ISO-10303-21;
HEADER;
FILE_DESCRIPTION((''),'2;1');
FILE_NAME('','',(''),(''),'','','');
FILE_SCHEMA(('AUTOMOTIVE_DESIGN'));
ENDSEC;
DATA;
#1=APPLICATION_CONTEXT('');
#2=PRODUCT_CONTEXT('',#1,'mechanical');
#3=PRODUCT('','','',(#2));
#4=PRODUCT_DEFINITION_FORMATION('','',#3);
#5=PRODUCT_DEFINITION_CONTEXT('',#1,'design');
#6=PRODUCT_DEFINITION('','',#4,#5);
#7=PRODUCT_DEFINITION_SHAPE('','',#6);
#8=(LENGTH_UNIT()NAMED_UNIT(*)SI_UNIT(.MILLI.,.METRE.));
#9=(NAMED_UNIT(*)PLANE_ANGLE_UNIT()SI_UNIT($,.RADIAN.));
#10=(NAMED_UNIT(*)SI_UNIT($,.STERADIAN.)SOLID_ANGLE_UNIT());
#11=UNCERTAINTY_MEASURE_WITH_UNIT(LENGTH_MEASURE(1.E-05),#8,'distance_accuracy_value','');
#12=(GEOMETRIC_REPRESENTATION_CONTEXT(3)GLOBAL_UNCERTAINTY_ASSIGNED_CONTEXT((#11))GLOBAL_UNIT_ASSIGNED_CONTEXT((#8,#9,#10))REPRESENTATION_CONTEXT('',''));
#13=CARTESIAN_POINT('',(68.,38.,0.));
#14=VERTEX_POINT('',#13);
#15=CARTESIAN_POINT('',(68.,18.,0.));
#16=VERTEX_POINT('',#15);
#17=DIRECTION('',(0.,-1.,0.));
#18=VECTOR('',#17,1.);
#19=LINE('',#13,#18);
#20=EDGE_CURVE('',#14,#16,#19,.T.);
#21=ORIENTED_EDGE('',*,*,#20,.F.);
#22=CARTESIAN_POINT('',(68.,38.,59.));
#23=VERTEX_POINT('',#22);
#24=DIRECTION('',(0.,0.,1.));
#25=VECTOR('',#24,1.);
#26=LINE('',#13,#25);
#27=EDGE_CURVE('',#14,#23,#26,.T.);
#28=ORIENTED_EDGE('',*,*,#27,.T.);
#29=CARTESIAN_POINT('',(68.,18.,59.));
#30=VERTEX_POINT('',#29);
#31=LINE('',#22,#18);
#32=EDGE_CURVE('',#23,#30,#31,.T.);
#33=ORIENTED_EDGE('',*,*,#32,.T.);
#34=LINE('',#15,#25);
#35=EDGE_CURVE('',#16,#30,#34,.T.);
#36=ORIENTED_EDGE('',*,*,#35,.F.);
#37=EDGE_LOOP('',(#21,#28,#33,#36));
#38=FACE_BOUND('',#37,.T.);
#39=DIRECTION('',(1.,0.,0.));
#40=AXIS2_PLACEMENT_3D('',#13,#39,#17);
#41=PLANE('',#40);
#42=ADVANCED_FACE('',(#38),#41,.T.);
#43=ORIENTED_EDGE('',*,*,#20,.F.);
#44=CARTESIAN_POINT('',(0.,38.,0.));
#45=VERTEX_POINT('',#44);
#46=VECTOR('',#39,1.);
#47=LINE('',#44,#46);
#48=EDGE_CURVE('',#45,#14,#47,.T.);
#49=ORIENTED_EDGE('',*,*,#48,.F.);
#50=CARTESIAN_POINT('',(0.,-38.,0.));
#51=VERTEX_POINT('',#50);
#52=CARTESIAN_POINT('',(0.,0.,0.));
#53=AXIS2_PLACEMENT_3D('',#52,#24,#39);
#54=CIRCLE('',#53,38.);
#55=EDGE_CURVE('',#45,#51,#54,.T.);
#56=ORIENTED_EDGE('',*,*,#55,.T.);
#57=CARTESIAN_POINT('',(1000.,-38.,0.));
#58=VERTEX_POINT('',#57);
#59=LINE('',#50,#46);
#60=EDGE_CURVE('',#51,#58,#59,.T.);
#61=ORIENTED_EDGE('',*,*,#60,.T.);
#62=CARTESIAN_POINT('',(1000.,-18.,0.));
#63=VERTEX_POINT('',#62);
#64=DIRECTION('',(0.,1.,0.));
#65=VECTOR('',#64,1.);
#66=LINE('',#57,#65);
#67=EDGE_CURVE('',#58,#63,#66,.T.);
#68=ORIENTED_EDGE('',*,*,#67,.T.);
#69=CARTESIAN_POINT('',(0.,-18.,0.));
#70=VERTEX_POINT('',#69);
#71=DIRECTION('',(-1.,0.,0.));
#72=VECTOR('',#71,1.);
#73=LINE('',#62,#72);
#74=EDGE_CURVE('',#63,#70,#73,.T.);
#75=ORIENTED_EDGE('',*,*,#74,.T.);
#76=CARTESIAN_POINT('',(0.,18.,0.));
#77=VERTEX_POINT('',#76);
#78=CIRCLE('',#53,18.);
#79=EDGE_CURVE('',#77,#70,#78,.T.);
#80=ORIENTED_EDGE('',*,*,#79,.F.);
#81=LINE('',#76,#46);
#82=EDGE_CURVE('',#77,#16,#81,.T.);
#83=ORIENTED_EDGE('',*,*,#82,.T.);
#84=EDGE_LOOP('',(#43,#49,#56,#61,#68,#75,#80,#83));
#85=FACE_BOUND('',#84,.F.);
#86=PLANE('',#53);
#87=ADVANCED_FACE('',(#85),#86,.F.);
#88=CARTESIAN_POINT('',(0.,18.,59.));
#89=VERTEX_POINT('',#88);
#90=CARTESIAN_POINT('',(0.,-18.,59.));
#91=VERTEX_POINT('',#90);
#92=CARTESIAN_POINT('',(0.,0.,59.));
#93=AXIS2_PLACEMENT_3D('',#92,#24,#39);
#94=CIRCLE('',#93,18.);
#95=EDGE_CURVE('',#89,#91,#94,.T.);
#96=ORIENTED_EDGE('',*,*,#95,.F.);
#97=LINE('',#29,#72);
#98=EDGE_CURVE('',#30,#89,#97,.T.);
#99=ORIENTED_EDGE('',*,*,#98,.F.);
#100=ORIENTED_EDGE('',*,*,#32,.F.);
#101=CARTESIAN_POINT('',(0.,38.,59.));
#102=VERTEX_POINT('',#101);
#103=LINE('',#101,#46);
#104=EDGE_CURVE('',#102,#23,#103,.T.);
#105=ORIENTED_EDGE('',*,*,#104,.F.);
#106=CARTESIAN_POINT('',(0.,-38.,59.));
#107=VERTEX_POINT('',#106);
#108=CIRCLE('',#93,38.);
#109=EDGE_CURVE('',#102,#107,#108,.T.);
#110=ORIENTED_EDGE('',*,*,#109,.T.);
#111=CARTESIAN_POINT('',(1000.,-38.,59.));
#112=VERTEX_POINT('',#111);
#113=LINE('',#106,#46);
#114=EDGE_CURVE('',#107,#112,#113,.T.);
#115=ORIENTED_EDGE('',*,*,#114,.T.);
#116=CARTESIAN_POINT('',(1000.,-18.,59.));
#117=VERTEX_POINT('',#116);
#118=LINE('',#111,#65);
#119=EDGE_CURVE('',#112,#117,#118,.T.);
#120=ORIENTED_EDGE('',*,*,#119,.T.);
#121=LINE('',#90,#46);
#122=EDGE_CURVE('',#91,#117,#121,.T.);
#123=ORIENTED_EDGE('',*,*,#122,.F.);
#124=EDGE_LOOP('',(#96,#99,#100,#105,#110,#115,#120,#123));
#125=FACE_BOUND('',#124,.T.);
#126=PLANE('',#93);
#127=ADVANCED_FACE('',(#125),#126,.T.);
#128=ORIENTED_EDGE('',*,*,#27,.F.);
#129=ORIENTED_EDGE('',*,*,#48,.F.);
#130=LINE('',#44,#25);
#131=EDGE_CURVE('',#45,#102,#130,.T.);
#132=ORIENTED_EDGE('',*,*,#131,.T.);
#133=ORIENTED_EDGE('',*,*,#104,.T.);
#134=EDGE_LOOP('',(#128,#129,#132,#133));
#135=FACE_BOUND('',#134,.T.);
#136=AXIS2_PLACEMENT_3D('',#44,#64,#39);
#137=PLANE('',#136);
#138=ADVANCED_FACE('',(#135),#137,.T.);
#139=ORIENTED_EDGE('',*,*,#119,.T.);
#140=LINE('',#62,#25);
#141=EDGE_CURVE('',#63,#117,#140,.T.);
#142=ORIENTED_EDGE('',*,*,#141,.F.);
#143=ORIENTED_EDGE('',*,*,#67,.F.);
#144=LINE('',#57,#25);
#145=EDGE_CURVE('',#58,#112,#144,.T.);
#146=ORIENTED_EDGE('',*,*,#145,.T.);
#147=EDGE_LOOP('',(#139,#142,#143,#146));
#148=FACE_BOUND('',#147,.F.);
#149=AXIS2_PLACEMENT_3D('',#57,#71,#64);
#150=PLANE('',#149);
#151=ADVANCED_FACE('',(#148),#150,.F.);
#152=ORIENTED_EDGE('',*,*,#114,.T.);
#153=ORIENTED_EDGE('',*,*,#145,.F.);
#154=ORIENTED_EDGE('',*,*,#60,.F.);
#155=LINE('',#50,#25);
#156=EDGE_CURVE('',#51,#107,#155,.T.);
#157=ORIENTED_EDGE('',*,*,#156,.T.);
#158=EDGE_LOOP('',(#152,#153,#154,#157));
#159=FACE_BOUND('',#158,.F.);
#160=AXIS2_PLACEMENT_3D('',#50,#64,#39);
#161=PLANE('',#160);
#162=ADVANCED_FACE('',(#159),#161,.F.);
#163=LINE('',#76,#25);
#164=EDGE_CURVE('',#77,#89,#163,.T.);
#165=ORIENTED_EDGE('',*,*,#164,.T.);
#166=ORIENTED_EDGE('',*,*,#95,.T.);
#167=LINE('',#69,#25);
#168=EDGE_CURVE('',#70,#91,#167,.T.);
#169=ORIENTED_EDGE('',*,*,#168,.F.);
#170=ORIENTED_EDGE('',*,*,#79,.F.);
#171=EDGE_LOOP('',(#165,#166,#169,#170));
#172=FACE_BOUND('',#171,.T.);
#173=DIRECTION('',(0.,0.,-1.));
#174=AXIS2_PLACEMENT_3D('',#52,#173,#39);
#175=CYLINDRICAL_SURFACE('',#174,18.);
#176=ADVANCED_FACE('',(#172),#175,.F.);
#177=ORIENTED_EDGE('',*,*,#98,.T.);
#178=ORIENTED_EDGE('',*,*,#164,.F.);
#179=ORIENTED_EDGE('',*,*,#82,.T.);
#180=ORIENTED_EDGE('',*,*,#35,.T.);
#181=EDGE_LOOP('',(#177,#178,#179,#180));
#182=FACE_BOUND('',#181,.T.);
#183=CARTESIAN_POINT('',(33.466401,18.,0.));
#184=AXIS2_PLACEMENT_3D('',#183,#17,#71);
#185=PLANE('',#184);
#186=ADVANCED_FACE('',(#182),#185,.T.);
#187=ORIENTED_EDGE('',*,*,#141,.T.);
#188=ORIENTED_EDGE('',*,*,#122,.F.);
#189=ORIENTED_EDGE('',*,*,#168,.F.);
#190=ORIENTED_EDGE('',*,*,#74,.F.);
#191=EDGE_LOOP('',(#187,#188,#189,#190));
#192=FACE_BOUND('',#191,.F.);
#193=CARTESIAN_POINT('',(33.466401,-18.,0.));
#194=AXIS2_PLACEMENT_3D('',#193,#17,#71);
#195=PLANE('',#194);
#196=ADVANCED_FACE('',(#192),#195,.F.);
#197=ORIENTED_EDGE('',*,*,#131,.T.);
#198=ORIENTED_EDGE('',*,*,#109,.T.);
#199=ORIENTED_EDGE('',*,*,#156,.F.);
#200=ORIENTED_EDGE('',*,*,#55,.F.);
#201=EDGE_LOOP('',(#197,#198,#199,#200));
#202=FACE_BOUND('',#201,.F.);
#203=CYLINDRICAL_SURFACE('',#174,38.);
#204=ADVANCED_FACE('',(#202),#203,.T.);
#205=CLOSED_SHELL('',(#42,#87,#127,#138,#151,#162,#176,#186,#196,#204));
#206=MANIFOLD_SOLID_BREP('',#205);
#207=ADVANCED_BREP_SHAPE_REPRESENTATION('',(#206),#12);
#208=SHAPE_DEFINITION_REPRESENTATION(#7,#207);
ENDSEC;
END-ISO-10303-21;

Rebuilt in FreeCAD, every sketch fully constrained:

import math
import FreeCAD as App
import Part
import Sketcher

V = App.Vector
Q = App.Units.Quantity

doc = App.newDocument("Part")
body = doc.addObject("PartDesign::Body", "Body")

sketch1 = body.newObject("Sketcher::SketchObject", "Sketch")
sketch1.AttachmentSupport = (doc.getObject("XY_Plane"), [""])
sketch1.MapMode = "FlatFace"
sketch1.addGeometry([
    Part.ArcOfCircle(Part.Circle(V(0, 0, 0), V(0, 0, 1), 18), math.radians(90), math.radians(270)),
    Part.LineSegment(V(0, 18, 0), V(68, 18, 0)),
    Part.LineSegment(V(68, 18, 0), V(68, 38, 0)),
    Part.LineSegment(V(68, 38, 0), V(0, 38, 0)),
    Part.ArcOfCircle(Part.Circle(V(0, 0, 0), V(0, 0, 1), 38), math.radians(90), math.radians(270)),
    Part.LineSegment(V(0, -38, 0), V(1000, -38, 0)),
    Part.LineSegment(V(1000, -38, 0), V(1000, -18, 0)),
    Part.LineSegment(V(1000, -18, 0), V(0, -18, 0)),
], False)
sketch1.addConstraint([
    Sketcher.Constraint("Tangent", 0, 1, 1, 1),
    Sketcher.Constraint("Coincident", 1, 2, 2, 1),
    Sketcher.Constraint("Coincident", 2, 2, 3, 1),
    Sketcher.Constraint("Tangent", 3, 2, 4, 1),
    Sketcher.Constraint("Tangent", 4, 2, 5, 1),
    Sketcher.Constraint("Coincident", 5, 2, 6, 1),
    Sketcher.Constraint("Coincident", 6, 2, 7, 1),
    Sketcher.Constraint("Tangent", 7, 2, 0, 2),
    Sketcher.Constraint("Horizontal", 1),
    Sketcher.Constraint("Vertical", 2),
    Sketcher.Constraint("Horizontal", 3),
    Sketcher.Constraint("Horizontal", 5),
    Sketcher.Constraint("Vertical", 6),
    Sketcher.Constraint("Horizontal", 7),
    Sketcher.Constraint("Coincident", 0, 3, -1, 1),
    Sketcher.Constraint("Coincident", 4, 3, -1, 1),
    Sketcher.Constraint("Radius", 4, Q("38 mm")),
    Sketcher.Constraint("DistanceX", 1, 1, 1, 2, Q("68 mm")),
    Sketcher.Constraint("DistanceX", 5, 1, 5, 2, Q("1000 mm")),
    Sketcher.Constraint("DistanceY", 2, 1, 2, 2, Q("20 mm")),
])
pad1 = body.newObject("PartDesign::Pad", "Pad")
pad1.Profile = sketch1
pad1.Length = 59

doc.recompute()
